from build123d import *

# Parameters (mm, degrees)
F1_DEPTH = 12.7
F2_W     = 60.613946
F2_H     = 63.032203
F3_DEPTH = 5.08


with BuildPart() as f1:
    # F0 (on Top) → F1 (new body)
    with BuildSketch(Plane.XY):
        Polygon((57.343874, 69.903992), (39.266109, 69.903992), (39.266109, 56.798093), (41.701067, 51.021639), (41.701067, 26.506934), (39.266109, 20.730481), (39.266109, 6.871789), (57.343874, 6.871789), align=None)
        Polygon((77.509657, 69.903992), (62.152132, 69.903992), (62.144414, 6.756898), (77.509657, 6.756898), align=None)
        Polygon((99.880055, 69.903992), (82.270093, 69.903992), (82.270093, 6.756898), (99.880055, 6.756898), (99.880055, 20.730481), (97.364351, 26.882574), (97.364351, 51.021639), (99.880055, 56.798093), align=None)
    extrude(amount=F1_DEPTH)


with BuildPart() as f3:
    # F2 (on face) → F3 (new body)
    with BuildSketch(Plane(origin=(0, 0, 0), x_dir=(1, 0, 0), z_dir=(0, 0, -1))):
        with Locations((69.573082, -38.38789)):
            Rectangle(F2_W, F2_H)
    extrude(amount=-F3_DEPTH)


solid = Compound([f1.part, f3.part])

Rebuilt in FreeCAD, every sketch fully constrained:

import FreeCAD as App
import Part
import Sketcher

V = App.Vector
Q = App.Units.Quantity

doc = App.newDocument("Part")
body = doc.addObject("PartDesign::Body", "Body")
body.AllowCompound = True

# Sketch on XY plane
sketch1 = body.newObject("Sketcher::SketchObject", "Sketch")
sketch1.AttachmentSupport = (doc.getObject("XY_Plane"), [""])
sketch1.MapMode = "FlatFace"
sketch1.addGeometry([
    Part.LineSegment(V(57, 70, 0), V(39, 70, 0)),  # 0
    Part.LineSegment(V(39, 70, 0), V(39, 57, 0)),  # 1
    Part.LineSegment(V(39, 57, 0), V(42, 51, 0)),  # 2
    Part.LineSegment(V(42, 51, 0), V(42, 27, 0)),  # 3
    Part.LineSegment(V(42, 27, 0), V(39, 21, 0)),  # 4
    Part.LineSegment(V(39, 21, 0), V(39, 7, 0)),  # 5
    Part.LineSegment(V(39, 7, 0), V(57, 7, 0)),  # 6
    Part.LineSegment(V(57, 7, 0), V(57, 70, 0)),  # 7
    Part.LineSegment(V(78, 70, 0), V(62, 70, 0)),  # 8
    Part.LineSegment(V(62, 70, 0), V(62, 7, 0)),  # 9
    Part.LineSegment(V(62, 7, 0), V(78, 7, 0)),  # 10
    Part.LineSegment(V(78, 7, 0), V(78, 70, 0)),  # 11
    Part.LineSegment(V(100, 70, 0), V(82, 70, 0)),  # 12
    Part.LineSegment(V(82, 70, 0), V(82, 7, 0)),  # 13
    Part.LineSegment(V(82, 7, 0), V(100, 7, 0)),  # 14
    Part.LineSegment(V(100, 7, 0), V(100, 21, 0)),  # 15
    Part.LineSegment(V(100, 21, 0), V(97, 27, 0)),  # 16
    Part.LineSegment(V(97, 27, 0), V(97, 51, 0)),  # 17
    Part.LineSegment(V(97, 51, 0), V(100, 57, 0)),  # 18
    Part.LineSegment(V(100, 57, 0), V(100, 70, 0)),  # 19
], False)
sketch1.addConstraint([
    Sketcher.Constraint("Coincident", 0, 2, 1, 1),
    Sketcher.Constraint("Coincident", 1, 2, 2, 1),
    Sketcher.Constraint("Coincident", 2, 2, 3, 1),
    Sketcher.Constraint("Coincident", 3, 2, 4, 1),
    Sketcher.Constraint("Coincident", 4, 2, 5, 1),
    Sketcher.Constraint("Coincident", 5, 2, 6, 1),
    Sketcher.Constraint("Coincident", 6, 2, 7, 1),
    Sketcher.Constraint("Coincident", 7, 2, 0, 1),
    Sketcher.Constraint("Coincident", 8, 2, 9, 1),
    Sketcher.Constraint("Coincident", 9, 2, 10, 1),
    Sketcher.Constraint("Coincident", 10, 2, 11, 1),
    Sketcher.Constraint("Coincident", 11, 2, 8, 1),
    Sketcher.Constraint("Coincident", 12, 2, 13, 1),
    Sketcher.Constraint("Coincident", 13, 2, 14, 1),
    Sketcher.Constraint("Coincident", 14, 2, 15, 1),
    Sketcher.Constraint("Coincident", 15, 2, 16, 1),
    Sketcher.Constraint("Coincident", 16, 2, 17, 1),
    Sketcher.Constraint("Coincident", 17, 2, 18, 1),
    Sketcher.Constraint("Coincident", 18, 2, 19, 1),
    Sketcher.Constraint("Coincident", 19, 2, 12, 1),
    Sketcher.Constraint("Horizontal", 0),
    Sketcher.Constraint("Vertical", 1),
    Sketcher.Constraint("Vertical", 3),
    Sketcher.Constraint("Vertical", 5),
    Sketcher.Constraint("Horizontal", 6),
    Sketcher.Constraint("Vertical", 7),
    Sketcher.Constraint("Horizontal", 8),
    Sketcher.Constraint("Horizontal", 10),
    Sketcher.Constraint("Vertical", 11),
    Sketcher.Constraint("Horizontal", 12),
    Sketcher.Constraint("Vertical", 13),
    Sketcher.Constraint("Horizontal", 14),
    Sketcher.Constraint("Vertical", 15),
    Sketcher.Constraint("Vertical", 17),
    Sketcher.Constraint("Vertical", 19),
    Sketcher.Constraint("Horizontal", 7, 2, 8, 2),
    Sketcher.Constraint("Horizontal", 11, 2, 12, 2),
    Sketcher.Constraint("Horizontal", 10, 2, 13, 2),
    Sketcher.Constraint("Horizontal", 4, 2, 15, 2),
    Sketcher.Constraint("Horizontal", 2, 2, 17, 2),
    Sketcher.Constraint("Horizontal", 1, 2, 18, 2),
    Sketcher.Constraint("Vertical", 1, 2, 4, 2),
    Sketcher.Constraint("Vertical", 15, 2, 18, 2),
    Sketcher.Constraint("Equal", 2, 4),
    Sketcher.Constraint("DistanceY", 1, 2, 1, 1, Q("13.105899 mm")),
    Sketcher.Constraint("DistanceX", 12, 2, 12, 1, Q("17.609962 mm")),
    Sketcher.Constraint("Distance", 16, Q("6.646579 mm")),
    Sketcher.Constraint("Distance", 18, Q("6.300491 mm")),
    Sketcher.Constraint("DistanceX", 0, 2, 0, 1, Q("18.077765 mm")),
    Sketcher.Constraint("DistanceX", 8, 2, 8, 1, Q("15.357525 mm")),
    Sketcher.Constraint("DistanceX", 10, 1, 10, 2, Q("15.365243 mm")),
    Sketcher.Constraint("DistanceY", 3, 2, 3, 1, Q("24.514705 mm")),
    Sketcher.Constraint("DistanceY", 5, 2, 5, 1, Q("13.858692 mm")),
    Sketcher.Constraint("DistanceY", 7, 1, 7, 2, Q("63.032203 mm")),
    Sketcher.Constraint("DistanceY", 11, 1, 11, 2, Q("63.147094 mm")),
    Sketcher.Constraint("DistanceX", -1, 1, 0, 2, Q("39.266109 mm")),
    Sketcher.Constraint("DistanceY", -1, 1, 2, 2, Q("51.021639 mm")),
    Sketcher.Constraint("DistanceX", -1, 1, 16, 2, Q("97.364351 mm")),
    Sketcher.Constraint("DistanceX", 1, 2, 2, 2, Q("2.434958 mm")),
    Sketcher.Constraint("DistanceX", 7, 2, 8, 2, Q("4.808258 mm")),
])
pad1 = body.newObject("PartDesign::Pad", "Pad")
pad1.Profile = sketch1
pad1.Length = Q("0.5 in")
body2 = doc.addObject("PartDesign::Body", "Body001")

# Sketch on XY plane
sketch2 = body2.newObject("Sketcher::SketchObject", "Sketch001")
sketch2.AttachmentSupport = (doc.getObject("XY_Plane001"), [""])
sketch2.MapMode = "FlatFace"
sketch2.addGeometry([
    Part.LineSegment(V(39, 7, 0), V(39, 70, 0)),
    Part.LineSegment(V(39, 70, 0), V(100, 70, 0)),
    Part.LineSegment(V(100, 70, 0), V(100, 7, 0)),
    Part.LineSegment(V(100, 7, 0), V(39, 7, 0)),
], False)
sketch2.addConstraint([
    Sketcher.Constraint("Coincident", 0, 2, 1, 1),
    Sketcher.Constraint("Coincident", 1, 2, 2, 1),
    Sketcher.Constraint("Coincident", 2, 2, 3, 1),
    Sketcher.Constraint("Coincident", 3, 2, 0, 1),
    Sketcher.Constraint("Vertical", 0),
    Sketcher.Constraint("Horizontal", 1),
    Sketcher.Constraint("Vertical", 2),
    Sketcher.Constraint("Horizontal", 3),
    Sketcher.Constraint("DistanceX", 1, 1, 1, 2, Q("60.613946 mm")),
    Sketcher.Constraint("DistanceY", 0, 1, 0, 2, Q("63.032203 mm")),
    Sketcher.Constraint("DistanceX", -1, 1, 0, 2, Q("39.266109 mm")),
    Sketcher.Constraint("DistanceY", -1, 1, 0, 2, Q("69.903992 mm")),
])
pad2 = body2.newObject("PartDesign::Pad", "Pad001")
pad2.Profile = sketch2
pad2.Length = Q("0.2 in")

doc.recompute()
